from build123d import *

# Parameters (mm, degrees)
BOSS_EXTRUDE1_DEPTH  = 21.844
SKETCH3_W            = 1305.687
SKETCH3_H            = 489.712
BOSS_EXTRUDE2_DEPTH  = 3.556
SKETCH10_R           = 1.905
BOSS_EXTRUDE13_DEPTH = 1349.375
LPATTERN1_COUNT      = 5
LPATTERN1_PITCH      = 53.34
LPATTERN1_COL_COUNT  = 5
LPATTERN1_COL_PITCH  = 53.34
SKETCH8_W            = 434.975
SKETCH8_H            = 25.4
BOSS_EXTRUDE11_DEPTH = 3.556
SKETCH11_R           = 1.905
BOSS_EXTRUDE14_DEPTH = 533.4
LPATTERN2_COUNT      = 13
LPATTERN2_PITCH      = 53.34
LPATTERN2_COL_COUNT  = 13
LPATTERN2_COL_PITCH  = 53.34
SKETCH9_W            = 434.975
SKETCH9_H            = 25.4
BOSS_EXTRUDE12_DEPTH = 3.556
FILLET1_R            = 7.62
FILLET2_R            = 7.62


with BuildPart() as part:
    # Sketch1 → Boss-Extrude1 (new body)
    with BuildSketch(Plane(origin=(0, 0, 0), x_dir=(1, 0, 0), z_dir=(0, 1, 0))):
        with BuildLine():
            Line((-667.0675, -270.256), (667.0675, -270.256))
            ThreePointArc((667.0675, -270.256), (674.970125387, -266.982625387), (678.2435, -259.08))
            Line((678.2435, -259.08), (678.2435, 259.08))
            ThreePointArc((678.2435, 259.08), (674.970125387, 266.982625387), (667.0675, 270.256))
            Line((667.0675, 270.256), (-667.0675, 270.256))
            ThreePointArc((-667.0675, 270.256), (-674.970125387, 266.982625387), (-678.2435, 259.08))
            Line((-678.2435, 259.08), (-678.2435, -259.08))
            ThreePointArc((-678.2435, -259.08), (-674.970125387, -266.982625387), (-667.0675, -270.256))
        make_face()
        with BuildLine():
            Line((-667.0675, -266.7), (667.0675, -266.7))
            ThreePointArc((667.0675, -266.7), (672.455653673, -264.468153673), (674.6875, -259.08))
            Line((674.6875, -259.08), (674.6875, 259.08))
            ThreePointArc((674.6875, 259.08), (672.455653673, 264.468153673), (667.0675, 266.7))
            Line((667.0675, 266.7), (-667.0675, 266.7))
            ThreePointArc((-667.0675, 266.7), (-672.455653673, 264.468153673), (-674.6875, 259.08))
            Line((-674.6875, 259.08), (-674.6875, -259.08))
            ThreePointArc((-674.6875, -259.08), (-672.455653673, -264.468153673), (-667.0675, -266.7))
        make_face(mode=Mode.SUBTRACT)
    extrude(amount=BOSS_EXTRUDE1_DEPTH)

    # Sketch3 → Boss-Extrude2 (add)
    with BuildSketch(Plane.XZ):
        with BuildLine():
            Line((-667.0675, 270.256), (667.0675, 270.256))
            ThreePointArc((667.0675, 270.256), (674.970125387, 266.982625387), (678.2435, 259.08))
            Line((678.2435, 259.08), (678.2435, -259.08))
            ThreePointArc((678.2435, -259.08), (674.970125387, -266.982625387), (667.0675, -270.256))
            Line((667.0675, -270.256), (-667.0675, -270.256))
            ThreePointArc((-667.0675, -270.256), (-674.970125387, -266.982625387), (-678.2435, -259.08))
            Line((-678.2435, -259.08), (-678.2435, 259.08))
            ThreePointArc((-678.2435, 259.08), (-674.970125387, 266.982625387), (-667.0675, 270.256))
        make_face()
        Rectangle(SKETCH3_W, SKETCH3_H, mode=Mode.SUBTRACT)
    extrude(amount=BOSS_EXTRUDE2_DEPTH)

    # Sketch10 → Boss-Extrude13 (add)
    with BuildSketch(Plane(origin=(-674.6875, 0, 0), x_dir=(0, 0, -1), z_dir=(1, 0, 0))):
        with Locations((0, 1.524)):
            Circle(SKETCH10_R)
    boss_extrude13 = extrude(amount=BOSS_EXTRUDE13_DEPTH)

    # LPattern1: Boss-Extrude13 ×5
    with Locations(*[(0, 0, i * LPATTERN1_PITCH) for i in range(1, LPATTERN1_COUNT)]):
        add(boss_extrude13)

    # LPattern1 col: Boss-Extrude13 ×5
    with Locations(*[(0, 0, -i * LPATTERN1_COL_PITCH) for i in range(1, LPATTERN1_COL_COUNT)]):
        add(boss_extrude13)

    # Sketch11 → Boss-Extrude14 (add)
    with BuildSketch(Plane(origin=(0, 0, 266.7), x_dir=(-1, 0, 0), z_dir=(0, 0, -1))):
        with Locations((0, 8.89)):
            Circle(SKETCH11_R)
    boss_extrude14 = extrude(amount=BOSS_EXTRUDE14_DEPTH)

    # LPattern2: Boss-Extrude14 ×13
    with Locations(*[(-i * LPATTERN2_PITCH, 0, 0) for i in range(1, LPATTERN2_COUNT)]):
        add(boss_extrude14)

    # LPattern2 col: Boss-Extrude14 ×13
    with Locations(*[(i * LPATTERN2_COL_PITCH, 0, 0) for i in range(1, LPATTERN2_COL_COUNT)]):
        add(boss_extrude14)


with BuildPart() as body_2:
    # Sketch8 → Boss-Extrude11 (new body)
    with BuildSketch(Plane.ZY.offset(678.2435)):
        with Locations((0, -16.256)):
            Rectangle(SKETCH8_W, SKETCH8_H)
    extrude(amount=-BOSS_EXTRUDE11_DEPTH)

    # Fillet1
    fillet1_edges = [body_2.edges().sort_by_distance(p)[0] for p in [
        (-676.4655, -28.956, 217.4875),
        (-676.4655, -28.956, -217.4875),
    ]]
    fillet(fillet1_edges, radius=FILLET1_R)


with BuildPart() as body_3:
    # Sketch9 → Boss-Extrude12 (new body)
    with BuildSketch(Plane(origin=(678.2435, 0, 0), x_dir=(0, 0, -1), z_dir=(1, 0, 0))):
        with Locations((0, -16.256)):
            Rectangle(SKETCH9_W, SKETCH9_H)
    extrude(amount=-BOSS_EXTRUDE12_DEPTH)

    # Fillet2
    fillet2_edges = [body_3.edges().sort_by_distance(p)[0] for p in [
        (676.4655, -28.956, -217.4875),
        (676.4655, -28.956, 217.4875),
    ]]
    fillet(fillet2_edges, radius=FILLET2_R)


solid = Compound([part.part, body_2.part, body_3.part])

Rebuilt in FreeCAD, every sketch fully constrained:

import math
import FreeCAD as App
import Part
import Sketcher
from FreeCAD import Vector
Q = App.Units.Quantity


def edges_at(feature, points):
    """Names of the edges that pass closest to the given points."""
    edges = feature.Shape.Edges
    near = lambda p: min(range(len(edges)), key=lambda i: edges[i].distToShape(Part.Vertex(*p))[0])
    return sorted({f"Edge{near(p) + 1}" for p in points})


def add_polygon(sketch, points):
    """Adds a closed chain of lines whose ends are joined by coincident constraints."""
    first, n = sketch.GeometryCount, len(points)
    for a, b in zip(points, points[1:] + points[:1]):
        sketch.addGeometry(Part.LineSegment(App.Vector(*a, 0), App.Vector(*b, 0)), False)
    for i in range(n):
        sketch.addConstraint(Sketcher.Constraint("Coincident", first + i, 2, first + (i + 1) % n, 1))

doc = App.newDocument("Part")
body = doc.addObject("PartDesign::Body", "Body")

# Sketch on XZ plane
sketch1 = doc.addObject("Sketcher::SketchObject", "Sketch")
body.addObject(sketch1)
sketch1.AttachmentSupport = (doc.XZ_Plane, [""])
sketch1.MapMode = "FlatFace"
sketch1.addGeometry([
    Part.LineSegment(Vector(-667.0675, 270.256, 0), Vector(667.0675, 270.256, 0)),  # 0
    Part.ArcOfCircle(Part.Circle(Vector(667.0675, 259.08, 0), Vector(0, 0, 1), 11.176), math.radians(0), math.radians(90)),  # 1
    Part.LineSegment(Vector(678.2435, 259.08, 0), Vector(678.2435, -259.08, 0)),  # 2
    Part.ArcOfCircle(Part.Circle(Vector(667.0675, -259.08, 0), Vector(0, 0, 1), 11.176), math.radians(-90), math.radians(0)),  # 3
    Part.LineSegment(Vector(667.0675, -270.256, 0), Vector(-667.0675, -270.256, 0)),  # 4
    Part.ArcOfCircle(Part.Circle(Vector(-667.0675, -259.08, 0), Vector(0, 0, 1), 11.176), math.radians(180), math.radians(270)),  # 5
    Part.LineSegment(Vector(-678.2435, -259.08, 0), Vector(-678.2435, 259.08, 0)),  # 6
    Part.ArcOfCircle(Part.Circle(Vector(-667.0675, 259.08, 0), Vector(0, 0, 1), 11.176), math.radians(90), math.radians(180)),  # 7
    Part.LineSegment(Vector(667.0675, 266.7, 0), Vector(-667.0675, 266.7, 0)),  # 8
    Part.ArcOfCircle(Part.Circle(Vector(-667.0675, 259.08, 0), Vector(0, 0, 1), 7.62), math.radians(90), math.radians(180)),  # 9
    Part.LineSegment(Vector(-674.6875, 259.08, 0), Vector(-674.6875, -259.08, 0)),  # 10
    Part.ArcOfCircle(Part.Circle(Vector(-667.0675, -259.08, 0), Vector(0, 0, 1), 7.62), math.radians(180), math.radians(270)),  # 11
    Part.LineSegment(Vector(-667.0675, -266.7, 0), Vector(667.0675, -266.7, 0)),  # 12
    Part.ArcOfCircle(Part.Circle(Vector(667.0675, -259.08, 0), Vector(0, 0, 1), 7.62), math.radians(-90), math.radians(0)),  # 13
    Part.LineSegment(Vector(674.6875, -259.08, 0), Vector(674.6875, 259.08, 0)),  # 14
    Part.ArcOfCircle(Part.Circle(Vector(667.0675, 259.08, 0), Vector(0, 0, 1), 7.62), math.radians(0), math.radians(90)),  # 15
], False)
sketch1.addConstraint([
    Sketcher.Constraint("Tangent", 0, 2, 1, 2),
    Sketcher.Constraint("Tangent", 1, 1, 2, 1),
    Sketcher.Constraint("Tangent", 2, 2, 3, 2),
    Sketcher.Constraint("Tangent", 3, 1, 4, 1),
    Sketcher.Constraint("Tangent", 4, 2, 5, 2),
    Sketcher.Constraint("Tangent", 5, 1, 6, 1),
    Sketcher.Constraint("Tangent", 6, 2, 7, 2),
    Sketcher.Constraint("Tangent", 7, 1, 0, 1),
    Sketcher.Constraint("Tangent", 8, 2, 9, 1),
    Sketcher.Constraint("Tangent", 9, 2, 10, 1),
    Sketcher.Constraint("Tangent", 10, 2, 11, 1),
    Sketcher.Constraint("Tangent", 11, 2, 12, 1),
    Sketcher.Constraint("Tangent", 12, 2, 13, 1),
    Sketcher.Constraint("Tangent", 13, 2, 14, 1),
    Sketcher.Constraint("Tangent", 14, 2, 15, 1),
    Sketcher.Constraint("Tangent", 15, 2, 8, 1),
    Sketcher.Constraint("Horizontal", 0),
    Sketcher.Constraint("Vertical", 2),
    Sketcher.Constraint("Horizontal", 4),
    Sketcher.Constraint("Vertical", 6),
    Sketcher.Constraint("Horizontal", 8),
    Sketcher.Constraint("Vertical", 10),
    Sketcher.Constraint("Horizontal", 12),
    Sketcher.Constraint("Vertical", 14),
    Sketcher.Constraint("Coincident", 9, 3, 7, 3),
    Sketcher.Constraint("Coincident", 11, 3, 5, 3),
    Sketcher.Constraint("Coincident", 13, 3, 3, 3),
    Sketcher.Constraint("Equal", 1, 3),
    Sketcher.Constraint("Equal", 3, 5),
    Sketcher.Constraint("Equal", 5, 7),
    Sketcher.Constraint("Equal", 13, 15),
    Sketcher.Constraint("Symmetric", 1, 3, 5, 3, -1, 1),
    Sketcher.Constraint("Radius", 9, Q("0.3 in")),
    Sketcher.Constraint("Radius", 1, Q("0.44 in")),
    Sketcher.Constraint("DistanceY", 2, 2, 2, 1, Q("20.4 in")),
    Sketcher.Constraint("DistanceX", 0, 1, 0, 2, Q("52.525 in")),
])
pad1 = doc.addObject("PartDesign::Pad", "Pad")
body.addObject(pad1)
pad1.Profile = sketch1
pad1.Length = Q("0.86 in")
pad1.Reversed = True

# Sketch on XZ plane
sketch2 = doc.addObject("Sketcher::SketchObject", "Sketch001")
body.addObject(sketch2)
sketch2.AttachmentSupport = (doc.XZ_Plane, [""])
sketch2.MapMode = "FlatFace"
sketch2.addGeometry(Part.LineSegment(Vector(667.0675, 270.256, 0), Vector(-667.0675, 270.256, 0)), False)  # 0
sketch2.addGeometry(Part.ArcOfCircle(Part.Circle(Vector(-667.0675, 259.08, 0), Vector(0, 0, 1), 11.176), math.radians(90), math.radians(180)), False)  # 1
sketch2.addGeometry(Part.LineSegment(Vector(-678.2435, 259.08, 0), Vector(-678.2435, -259.08, 0)), False)  # 2
sketch2.addGeometry(Part.ArcOfCircle(Part.Circle(Vector(-667.0675, -259.08, 0), Vector(0, 0, 1), 11.176), math.radians(180), math.radians(270)), False)  # 3
sketch2.addGeometry(Part.LineSegment(Vector(-667.0675, -270.256, 0), Vector(667.0675, -270.256, 0)), False)  # 4
sketch2.addGeometry(Part.ArcOfCircle(Part.Circle(Vector(667.0675, -259.08, 0), Vector(0, 0, 1), 11.176), math.radians(-90), math.radians(0)), False)  # 5
sketch2.addGeometry(Part.LineSegment(Vector(678.2435, -259.08, 0), Vector(678.2435, 259.08, 0)), False)  # 6
sketch2.addGeometry(Part.ArcOfCircle(Part.Circle(Vector(667.0675, 259.08, 0), Vector(0, 0, 1), 11.176), math.radians(0), math.radians(90)), False)  # 7
add_polygon(sketch2, [(-652.8435, -244.856), (-652.8435, 244.856), (652.8435, 244.856), (652.8435, -244.856)])  # lines 8-11
sketch2.addConstraint([
    Sketcher.Constraint("Tangent", 0, 2, 1, 1),
    Sketcher.Constraint("Tangent", 1, 2, 2, 1),
    Sketcher.Constraint("Tangent", 2, 2, 3, 1),
    Sketcher.Constraint("Tangent", 3, 2, 4, 1),
    Sketcher.Constraint("Tangent", 4, 2, 5, 1),
    Sketcher.Constraint("Tangent", 5, 2, 6, 1),
    Sketcher.Constraint("Tangent", 6, 2, 7, 1),
    Sketcher.Constraint("Tangent", 7, 2, 0, 1),
    Sketcher.Constraint("Horizontal", 0),
    Sketcher.Constraint("Vertical", 2),
    Sketcher.Constraint("Horizontal", 4),
    Sketcher.Constraint("Vertical", 6),
    Sketcher.Constraint("Vertical", 8),
    Sketcher.Constraint("Horizontal", 9),
    Sketcher.Constraint("Vertical", 10),
    Sketcher.Constraint("Horizontal", 11),
    Sketcher.Constraint("Equal", 1, 3),
    Sketcher.Constraint("Equal", 3, 5),
    Sketcher.Constraint("Equal", 5, 7),
    Sketcher.Constraint("Symmetric", 1, 3, 5, 3, -1, 1),
    Sketcher.Constraint("Symmetric", 8, 2, 10, 2, -1, 1),
    Sketcher.Constraint("Radius", 1, Q("0.44 in")),
    Sketcher.Constraint("DistanceY", 2, 2, 2, 1, Q("20.4 in")),
    Sketcher.Constraint("DistanceX", 1, 2, 8, 2, Q("1 in")),
    Sketcher.Constraint("DistanceY", 8, 2, 0, 2, Q("1 in")),
    Sketcher.Constraint("DistanceX", 0, 2, 0, 1, Q("52.525 in")),
])
pad2 = doc.addObject("PartDesign::Pad", "Pad001")
body.addObject(pad2)
pad2.Profile = sketch2
pad2.Length = Q("0.14 in")

# Sketch on YZ plane
sketch3 = doc.addObject("Sketcher::SketchObject", "Sketch002")
body.addObject(sketch3)
sketch3.AttachmentSupport = (doc.YZ_Plane, [""])
sketch3.MapMode = "FlatFace"
sketch3.AttachmentOffset = App.Placement(Vector(0, 0, -26.5625 * 25.4), App.Rotation())
sketch3.addGeometry(Part.Circle(Vector(1.524, 0, 0), Vector(0, 0, 1), 1.905), False)
sketch3.addConstraint([
    Sketcher.Constraint("PointOnObject", 0, 3, -1),
    Sketcher.Constraint("Diameter", 0, Q("0.15 in")),
    Sketcher.Constraint("DistanceX", -1, 1, 0, 3, Q("0.06 in")),
])
pad3 = doc.addObject("PartDesign::Pad", "Pad002")
body.addObject(pad3)
pad3.Profile = sketch3
pad3.Length = Q("53.125 in")
doc.recompute()

linearpattern = doc.addObject("PartDesign::LinearPattern", "LinearPattern")
body.addObject(linearpattern)
linearpattern.Originals = [pad3]
linearpattern.Direction = (doc.Z_Axis, [""])
linearpattern.Mode = "offset"
linearpattern.Offset = Q("2.1 in")
linearpattern.Occurrences = 5
body.Tip = linearpattern
doc.recompute()

linearpattern2 = doc.addObject("PartDesign::LinearPattern", "LinearPattern001")
body.addObject(linearpattern2)
linearpattern2.Originals = [pad3]
linearpattern2.Direction = (doc.Z_Axis, [""])
linearpattern2.Mode = "offset"
linearpattern2.Offset = Q("2.1 in")
linearpattern2.Occurrences = 5
linearpattern2.Reversed = True
body.Tip = linearpattern2

# Sketch on XY plane
sketch4 = doc.addObject("Sketcher::SketchObject", "Sketch003")
body.addObject(sketch4)
sketch4.AttachmentSupport = (doc.XY_Plane, [""])
sketch4.MapMode = "FlatFace"
sketch4.AttachmentOffset = App.Placement(Vector(0, 0, 10.5 * 25.4), App.Rotation())
sketch4.addGeometry(Part.Circle(Vector(0, 8.89, 0), Vector(0, 0, 1), 1.905), False)
sketch4.addConstraint([
    Sketcher.Constraint("PointOnObject", 0, 3, -2),
    Sketcher.Constraint("Diameter", 0, Q("0.15 in")),
    Sketcher.Constraint("DistanceY", -1, 1, 0, 3, Q("0.35 in")),
])
pad4 = doc.addObject("PartDesign::Pad", "Pad003")
body.addObject(pad4)
pad4.Profile = sketch4
pad4.Length = Q("21 in")
pad4.Reversed = True
doc.recompute()

linearpattern3 = doc.addObject("PartDesign::LinearPattern", "LinearPattern002")
body.addObject(linearpattern3)
linearpattern3.Originals = [pad4]
linearpattern3.Direction = (doc.X_Axis, [""])
linearpattern3.Mode = "offset"
linearpattern3.Offset = Q("2.1 in")
linearpattern3.Occurrences = 13
linearpattern3.Reversed = True
body.Tip = linearpattern3
doc.recompute()

linearpattern4 = doc.addObject("PartDesign::LinearPattern", "LinearPattern003")
body.addObject(linearpattern4)
linearpattern4.Originals = [pad4]
linearpattern4.Direction = (doc.X_Axis, [""])
linearpattern4.Mode = "offset"
linearpattern4.Offset = Q("2.1 in")
linearpattern4.Occurrences = 13
body.Tip = linearpattern4
body2 = doc.addObject("PartDesign::Body", "Body001")

# Sketch on YZ plane
sketch5 = doc.addObject("Sketcher::SketchObject", "Sketch004")
body2.addObject(sketch5)
sketch5.AttachmentSupport = (doc.getObject("YZ_Plane001"), [""])
sketch5.MapMode = "FlatFace"
sketch5.AttachmentOffset = App.Placement(Vector(0, 0, -26.7025 * 25.4), App.Rotation())
add_polygon(sketch5, [(-3.556, -217.4875), (-28.956, -217.4875), (-28.956, 217.4875), (-3.556, 217.4875)])  # lines 0-3
sketch5.addConstraint([
    Sketcher.Constraint("Horizontal", 0),
    Sketcher.Constraint("Vertical", 1),
    Sketcher.Constraint("Horizontal", 2),
    Sketcher.Constraint("Vertical", 3),
    Sketcher.Constraint("DistanceX", 0, 2, 0, 1, Q("1 in")),
    Sketcher.Constraint("DistanceY", 1, 1, 1, 2, Q("17.125 in")),
    Sketcher.Constraint("DistanceX", 0, 2, -1, 1, Q("1.14 in")),
    Sketcher.Constraint("DistanceY", 0, 2, -1, 1, Q("8.5625 in")),
])
pad5 = doc.addObject("PartDesign::Pad", "Pad004")
body2.addObject(pad5)
pad5.Profile = sketch5
pad5.Length = Q("0.14 in")
doc.recompute()

fillet = doc.addObject("PartDesign::Fillet", "Fillet")
body2.addObject(fillet)
fillet.Base = (pad5, edges_at(pad5, [(-676.466, -28.956, 217.488), (-676.466, -28.956, -217.488)]))
fillet.Radius = Q("0.3 in")
body3 = doc.addObject("PartDesign::Body", "Body002")

# Sketch on YZ plane
sketch6 = doc.addObject("Sketcher::SketchObject", "Sketch005")
body3.addObject(sketch6)
sketch6.AttachmentSupport = (doc.getObject("YZ_Plane002"), [""])
sketch6.MapMode = "FlatFace"
sketch6.AttachmentOffset = App.Placement(Vector(0, 0, 26.7025 * 25.4), App.Rotation())
add_polygon(sketch6, [(-3.556, 217.4875), (-28.956, 217.4875), (-28.956, -217.4875), (-3.556, -217.4875)])  # lines 0-3
sketch6.addConstraint([
    Sketcher.Constraint("Horizontal", 0),
    Sketcher.Constraint("Vertical", 1),
    Sketcher.Constraint("Horizontal", 2),
    Sketcher.Constraint("Vertical", 3),
    Sketcher.Constraint("DistanceX", 0, 2, 0, 1, Q("1 in")),
    Sketcher.Constraint("DistanceY", 1, 2, 1, 1, Q("17.125 in")),
    Sketcher.Constraint("DistanceX", 0, 2, -1, 1, Q("1.14 in")),
    Sketcher.Constraint("DistanceY", -1, 1, 0, 2, Q("8.5625 in")),
])
pad6 = doc.addObject("PartDesign::Pad", "Pad005")
body3.addObject(pad6)
pad6.Profile = sketch6
pad6.Length = Q("0.14 in")
pad6.Reversed = True
doc.recompute()

fillet2 = doc.addObject("PartDesign::Fillet", "Fillet001")
body3.addObject(fillet2)
fillet2.Base = (pad6, edges_at(pad6, [(676.466, -28.956, -217.488), (676.466, -28.956, 217.488)]))
fillet2.Radius = Q("0.3 in")

doc.recompute()
